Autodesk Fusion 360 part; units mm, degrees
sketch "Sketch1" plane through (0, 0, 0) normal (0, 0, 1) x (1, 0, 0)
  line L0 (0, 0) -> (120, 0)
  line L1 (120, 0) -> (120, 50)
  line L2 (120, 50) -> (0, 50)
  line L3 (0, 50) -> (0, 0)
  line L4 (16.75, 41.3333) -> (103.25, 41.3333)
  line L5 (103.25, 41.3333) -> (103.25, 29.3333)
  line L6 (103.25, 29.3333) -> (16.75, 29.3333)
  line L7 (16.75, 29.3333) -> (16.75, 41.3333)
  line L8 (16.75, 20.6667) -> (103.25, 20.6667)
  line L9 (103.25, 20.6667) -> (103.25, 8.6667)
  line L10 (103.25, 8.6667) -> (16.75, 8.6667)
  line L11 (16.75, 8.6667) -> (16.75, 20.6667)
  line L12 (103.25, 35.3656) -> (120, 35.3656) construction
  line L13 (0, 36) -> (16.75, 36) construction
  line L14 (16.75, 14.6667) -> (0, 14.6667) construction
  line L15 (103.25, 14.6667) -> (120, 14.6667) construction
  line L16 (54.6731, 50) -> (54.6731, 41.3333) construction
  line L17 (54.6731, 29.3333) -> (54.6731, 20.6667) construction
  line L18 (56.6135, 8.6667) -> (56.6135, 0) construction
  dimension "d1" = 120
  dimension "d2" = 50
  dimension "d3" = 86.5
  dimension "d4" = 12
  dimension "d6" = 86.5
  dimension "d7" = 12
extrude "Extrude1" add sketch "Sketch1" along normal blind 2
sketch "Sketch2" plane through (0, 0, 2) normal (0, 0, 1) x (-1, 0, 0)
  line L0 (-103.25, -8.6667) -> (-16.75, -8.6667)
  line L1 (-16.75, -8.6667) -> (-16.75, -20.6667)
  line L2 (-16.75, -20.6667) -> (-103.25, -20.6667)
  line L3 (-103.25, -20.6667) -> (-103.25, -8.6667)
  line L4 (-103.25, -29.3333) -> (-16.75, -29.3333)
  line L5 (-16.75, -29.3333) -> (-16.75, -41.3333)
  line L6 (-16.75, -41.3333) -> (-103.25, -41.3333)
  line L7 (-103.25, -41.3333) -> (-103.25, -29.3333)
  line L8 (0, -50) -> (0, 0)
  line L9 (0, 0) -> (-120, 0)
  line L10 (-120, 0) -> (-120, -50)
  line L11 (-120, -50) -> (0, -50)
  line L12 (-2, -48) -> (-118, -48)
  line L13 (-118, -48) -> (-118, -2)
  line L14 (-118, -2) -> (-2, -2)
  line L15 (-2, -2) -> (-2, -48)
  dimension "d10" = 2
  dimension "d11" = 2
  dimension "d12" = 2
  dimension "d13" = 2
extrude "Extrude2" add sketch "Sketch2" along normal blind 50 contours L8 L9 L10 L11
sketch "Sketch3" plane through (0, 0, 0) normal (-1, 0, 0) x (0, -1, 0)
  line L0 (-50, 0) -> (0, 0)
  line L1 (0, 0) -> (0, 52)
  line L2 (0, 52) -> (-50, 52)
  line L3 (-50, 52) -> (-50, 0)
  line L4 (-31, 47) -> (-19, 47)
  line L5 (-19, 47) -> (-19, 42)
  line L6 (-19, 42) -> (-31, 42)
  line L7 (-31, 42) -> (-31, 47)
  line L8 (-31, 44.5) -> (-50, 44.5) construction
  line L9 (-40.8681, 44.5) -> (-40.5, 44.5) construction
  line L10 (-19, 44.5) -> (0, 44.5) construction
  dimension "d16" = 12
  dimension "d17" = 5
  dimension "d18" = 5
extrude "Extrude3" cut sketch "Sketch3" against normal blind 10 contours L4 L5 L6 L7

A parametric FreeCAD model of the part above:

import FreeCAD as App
import Part
import Sketcher
from FreeCAD import Vector


def add_polygon(sketch, points):
    """Adds a closed chain of lines whose ends are joined by coincident constraints."""
    first, n = sketch.GeometryCount, len(points)
    for a, b in zip(points, points[1:] + points[:1]):
        sketch.addGeometry(Part.LineSegment(App.Vector(*a, 0), App.Vector(*b, 0)), False)
    for i in range(n):
        sketch.addConstraint(Sketcher.Constraint("Coincident", first + i, 2, first + (i + 1) % n, 1))

doc = App.newDocument("Part")
body = doc.addObject("PartDesign::Body", "Body")

# Sketch on XY plane
sketch1 = body.newObject("Sketcher::SketchObject", "Sketch")
sketch1.AttachmentSupport = (doc.getObject("XY_Plane"), [""])
sketch1.MapMode = "FlatFace"
add_polygon(sketch1, [(0, 50), (0, 0), (120, 0), (120, 50)])  # lines 0-3
add_polygon(sketch1, [(17, 9), (17, 21), (103, 21), (103, 9)])  # lines 4-7
add_polygon(sketch1, [(17, 29), (17, 41), (103, 41), (103, 29)])  # lines 8-11
sketch1.addConstraint([
    Sketcher.Constraint("Vertical", 0),
    Sketcher.Constraint("Horizontal", 1),
    Sketcher.Constraint("Vertical", 2),
    Sketcher.Constraint("Horizontal", 3),
    Sketcher.Constraint("Vertical", 4),
    Sketcher.Constraint("Horizontal", 5),
    Sketcher.Constraint("Vertical", 6),
    Sketcher.Constraint("Horizontal", 7),
    Sketcher.Constraint("Vertical", 8),
    Sketcher.Constraint("Horizontal", 9),
    Sketcher.Constraint("Vertical", 10),
    Sketcher.Constraint("Horizontal", 11),
    Sketcher.Constraint("Coincident", 0, 2, -1, 1),
    Sketcher.Constraint("Vertical", 7, 2, 8, 2),
    Sketcher.Constraint("Vertical", 6, 2, 9, 2),
    Sketcher.Constraint("Equal", 6, 8),
    Sketcher.Constraint("DistanceX", 1, 1, 1, 2, 120.0),
    Sketcher.Constraint("DistanceY", 0, 2, 0, 1, 50.0),
    Sketcher.Constraint("DistanceY", 4, 1, 4, 2, 12.0),
    Sketcher.Constraint("DistanceX", 5, 1, 5, 2, 86.5),
    Sketcher.Constraint("DistanceX", -1, 1, 4, 2, 16.75),
    Sketcher.Constraint("DistanceY", -1, 1, 4, 2, 20.6667),
    Sketcher.Constraint("DistanceY", -1, 1, 8, 2, 41.3333),
])
pad1 = body.newObject("PartDesign::Pad", "Pad")
pad1.Profile = sketch1
pad1.Length = 2

# Sketch on XY plane
sketch2 = body.newObject("Sketcher::SketchObject", "Sketch001")
sketch2.AttachmentSupport = (doc.getObject("XY_Plane"), [""])
sketch2.MapMode = "FlatFace"
sketch2.AttachmentOffset = App.Placement(Vector(0, 0, 2), App.Rotation())
add_polygon(sketch2, [(120, 50), (0, 50), (0, 0), (120, 0)])  # lines 0-3
add_polygon(sketch2, [(2, 2), (2, 48), (118, 48), (118, 2)])  # lines 4-7
sketch2.addConstraint([
    Sketcher.Constraint("Horizontal", 0),
    Sketcher.Constraint("Vertical", 1),
    Sketcher.Constraint("Horizontal", 2),
    Sketcher.Constraint("Vertical", 3),
    Sketcher.Constraint("Vertical", 4),
    Sketcher.Constraint("Horizontal", 5),
    Sketcher.Constraint("Vertical", 6),
    Sketcher.Constraint("Horizontal", 7),
    Sketcher.Constraint("Coincident", 1, 2, -1, 1),
    Sketcher.Constraint("DistanceX", -1, 1, 4, 2, 2.0),
    Sketcher.Constraint("DistanceY", -1, 1, 6, 2, 2.0),
    Sketcher.Constraint("DistanceY", 4, 2, 0, 2, 2.0),
    Sketcher.Constraint("DistanceX", 5, 2, 3, 2, 2.0),
    Sketcher.Constraint("DistanceX", 0, 2, 0, 1, 120.0),
    Sketcher.Constraint("DistanceY", 1, 2, 1, 1, 50.0),
])
pad2 = body.newObject("PartDesign::Pad", "Pad001")
pad2.Profile = sketch2
pad2.Length = 50

# Sketch on YZ plane
sketch3 = body.newObject("Sketcher::SketchObject", "Sketch002")
sketch3.AttachmentSupport = (doc.getObject("YZ_Plane"), [""])
sketch3.MapMode = "FlatFace"
add_polygon(sketch3, [(19, 47), (31, 47), (31, 42), (19, 42)])  # lines 0-3
sketch3.addConstraint([
    Sketcher.Constraint("Horizontal", 0),
    Sketcher.Constraint("Vertical", 1),
    Sketcher.Constraint("Horizontal", 2),
    Sketcher.Constraint("Vertical", 3),
    Sketcher.Constraint("DistanceX", 0, 1, 0, 2, 12.0),
    Sketcher.Constraint("DistanceY", 1, 2, 1, 1, 5.0),
    Sketcher.Constraint("DistanceX", -1, 1, 0, 2, 31.0),
    Sketcher.Constraint("DistanceY", -1, 1, 0, 2, 47.0),
])
pocket1 = body.newObject("PartDesign::Pocket", "Pocket")
pocket1.Profile = sketch3
pocket1.Length = 10
pocket1.Reversed = True

doc.recompute()
